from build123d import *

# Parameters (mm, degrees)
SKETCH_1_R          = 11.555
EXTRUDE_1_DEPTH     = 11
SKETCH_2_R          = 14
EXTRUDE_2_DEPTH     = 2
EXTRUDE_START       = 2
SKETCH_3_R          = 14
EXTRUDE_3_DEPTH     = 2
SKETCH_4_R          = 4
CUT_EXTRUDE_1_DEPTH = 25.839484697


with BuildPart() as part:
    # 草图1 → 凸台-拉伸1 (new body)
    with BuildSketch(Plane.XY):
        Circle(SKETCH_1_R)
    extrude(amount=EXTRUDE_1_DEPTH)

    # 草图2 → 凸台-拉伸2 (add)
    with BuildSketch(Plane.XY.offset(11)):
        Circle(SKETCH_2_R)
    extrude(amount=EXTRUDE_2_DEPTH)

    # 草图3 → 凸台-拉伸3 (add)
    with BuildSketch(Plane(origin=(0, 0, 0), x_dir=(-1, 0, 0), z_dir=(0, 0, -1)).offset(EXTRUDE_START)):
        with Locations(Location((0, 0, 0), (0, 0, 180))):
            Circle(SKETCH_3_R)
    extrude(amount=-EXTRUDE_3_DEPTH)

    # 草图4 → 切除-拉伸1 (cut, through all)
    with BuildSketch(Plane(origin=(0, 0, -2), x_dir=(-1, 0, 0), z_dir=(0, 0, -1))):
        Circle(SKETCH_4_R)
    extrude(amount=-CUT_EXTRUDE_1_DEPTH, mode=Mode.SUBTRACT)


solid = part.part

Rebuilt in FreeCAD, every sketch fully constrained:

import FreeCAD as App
import Part
import Sketcher
Q = App.Units.Quantity

doc = App.newDocument("Part")
body = doc.addObject("PartDesign::Body", "Body")

# Sketch on XY plane
sketch1 = doc.addObject("Sketcher::SketchObject", "Sketch")
body.addObject(sketch1)
sketch1.AttachmentSupport = (doc.XY_Plane, [""])
sketch1.MapMode = "FlatFace"
sketch1.addGeometry(Part.Circle(App.Vector(0, 0, 0), App.Vector(0, 0, 1), 12), False)
sketch1.addConstraint([
    Sketcher.Constraint("Coincident", 0, 3, -1, 1),
    Sketcher.Constraint("Diameter", 0, Q("23.11 mm")),
])
pad1 = doc.addObject("PartDesign::Pad", "Pad")
body.addObject(pad1)
pad1.Profile = sketch1
pad1.Length = 11

# Sketch on XY plane
sketch2 = doc.addObject("Sketcher::SketchObject", "Sketch001")
body.addObject(sketch2)
sketch2.AttachmentSupport = (doc.XY_Plane, [""])
sketch2.MapMode = "FlatFace"
sketch2.AttachmentOffset = App.Placement(App.Vector(0, 0, 11), App.Rotation())
sketch2.addGeometry(Part.Circle(App.Vector(0, 0, 0), App.Vector(0, 0, 1), 14), False)
sketch2.addConstraint([
    Sketcher.Constraint("Coincident", 0, 3, -1, 1),
    Sketcher.Constraint("Diameter", 0, Q("28 mm")),
])
pad2 = doc.addObject("PartDesign::Pad", "Pad001")
body.addObject(pad2)
pad2.Profile = sketch2
pad2.Length = 2

# Sketch on XY plane
sketch3 = doc.addObject("Sketcher::SketchObject", "Sketch002")
body.addObject(sketch3)
sketch3.AttachmentSupport = (doc.XY_Plane, [""])
sketch3.MapMode = "FlatFace"
sketch3.AttachmentOffset = App.Placement(App.Vector(0, 0, -2), App.Rotation())
sketch3.addGeometry(Part.Circle(App.Vector(0, 0, 0), App.Vector(0, 0, 1), 14), False)
sketch3.addConstraint([
    Sketcher.Constraint("Coincident", 0, 3, -1, 1),
    Sketcher.Constraint("Diameter", 0, Q("28 mm")),
])
pad3 = doc.addObject("PartDesign::Pad", "Pad002")
body.addObject(pad3)
pad3.Profile = sketch3
pad3.Length = 2

# Sketch on XY plane
sketch4 = doc.addObject("Sketcher::SketchObject", "Sketch003")
body.addObject(sketch4)
sketch4.AttachmentSupport = (doc.XY_Plane, [""])
sketch4.MapMode = "FlatFace"
sketch4.AttachmentOffset = App.Placement(App.Vector(0, 0, -2), App.Rotation())
sketch4.addGeometry(Part.Circle(App.Vector(0, 0, 0), App.Vector(0, 0, 1), 4), False)
sketch4.addConstraint([
    Sketcher.Constraint("Coincident", 0, 3, -1, 1),
    Sketcher.Constraint("Diameter", 0, Q("8 mm")),
])
pocket1 = doc.addObject("PartDesign::Pocket", "Pocket")
body.addObject(pocket1)
pocket1.Profile = sketch4
pocket1.Type = "ThroughAll"
pocket1.Reversed = True

doc.recompute()
